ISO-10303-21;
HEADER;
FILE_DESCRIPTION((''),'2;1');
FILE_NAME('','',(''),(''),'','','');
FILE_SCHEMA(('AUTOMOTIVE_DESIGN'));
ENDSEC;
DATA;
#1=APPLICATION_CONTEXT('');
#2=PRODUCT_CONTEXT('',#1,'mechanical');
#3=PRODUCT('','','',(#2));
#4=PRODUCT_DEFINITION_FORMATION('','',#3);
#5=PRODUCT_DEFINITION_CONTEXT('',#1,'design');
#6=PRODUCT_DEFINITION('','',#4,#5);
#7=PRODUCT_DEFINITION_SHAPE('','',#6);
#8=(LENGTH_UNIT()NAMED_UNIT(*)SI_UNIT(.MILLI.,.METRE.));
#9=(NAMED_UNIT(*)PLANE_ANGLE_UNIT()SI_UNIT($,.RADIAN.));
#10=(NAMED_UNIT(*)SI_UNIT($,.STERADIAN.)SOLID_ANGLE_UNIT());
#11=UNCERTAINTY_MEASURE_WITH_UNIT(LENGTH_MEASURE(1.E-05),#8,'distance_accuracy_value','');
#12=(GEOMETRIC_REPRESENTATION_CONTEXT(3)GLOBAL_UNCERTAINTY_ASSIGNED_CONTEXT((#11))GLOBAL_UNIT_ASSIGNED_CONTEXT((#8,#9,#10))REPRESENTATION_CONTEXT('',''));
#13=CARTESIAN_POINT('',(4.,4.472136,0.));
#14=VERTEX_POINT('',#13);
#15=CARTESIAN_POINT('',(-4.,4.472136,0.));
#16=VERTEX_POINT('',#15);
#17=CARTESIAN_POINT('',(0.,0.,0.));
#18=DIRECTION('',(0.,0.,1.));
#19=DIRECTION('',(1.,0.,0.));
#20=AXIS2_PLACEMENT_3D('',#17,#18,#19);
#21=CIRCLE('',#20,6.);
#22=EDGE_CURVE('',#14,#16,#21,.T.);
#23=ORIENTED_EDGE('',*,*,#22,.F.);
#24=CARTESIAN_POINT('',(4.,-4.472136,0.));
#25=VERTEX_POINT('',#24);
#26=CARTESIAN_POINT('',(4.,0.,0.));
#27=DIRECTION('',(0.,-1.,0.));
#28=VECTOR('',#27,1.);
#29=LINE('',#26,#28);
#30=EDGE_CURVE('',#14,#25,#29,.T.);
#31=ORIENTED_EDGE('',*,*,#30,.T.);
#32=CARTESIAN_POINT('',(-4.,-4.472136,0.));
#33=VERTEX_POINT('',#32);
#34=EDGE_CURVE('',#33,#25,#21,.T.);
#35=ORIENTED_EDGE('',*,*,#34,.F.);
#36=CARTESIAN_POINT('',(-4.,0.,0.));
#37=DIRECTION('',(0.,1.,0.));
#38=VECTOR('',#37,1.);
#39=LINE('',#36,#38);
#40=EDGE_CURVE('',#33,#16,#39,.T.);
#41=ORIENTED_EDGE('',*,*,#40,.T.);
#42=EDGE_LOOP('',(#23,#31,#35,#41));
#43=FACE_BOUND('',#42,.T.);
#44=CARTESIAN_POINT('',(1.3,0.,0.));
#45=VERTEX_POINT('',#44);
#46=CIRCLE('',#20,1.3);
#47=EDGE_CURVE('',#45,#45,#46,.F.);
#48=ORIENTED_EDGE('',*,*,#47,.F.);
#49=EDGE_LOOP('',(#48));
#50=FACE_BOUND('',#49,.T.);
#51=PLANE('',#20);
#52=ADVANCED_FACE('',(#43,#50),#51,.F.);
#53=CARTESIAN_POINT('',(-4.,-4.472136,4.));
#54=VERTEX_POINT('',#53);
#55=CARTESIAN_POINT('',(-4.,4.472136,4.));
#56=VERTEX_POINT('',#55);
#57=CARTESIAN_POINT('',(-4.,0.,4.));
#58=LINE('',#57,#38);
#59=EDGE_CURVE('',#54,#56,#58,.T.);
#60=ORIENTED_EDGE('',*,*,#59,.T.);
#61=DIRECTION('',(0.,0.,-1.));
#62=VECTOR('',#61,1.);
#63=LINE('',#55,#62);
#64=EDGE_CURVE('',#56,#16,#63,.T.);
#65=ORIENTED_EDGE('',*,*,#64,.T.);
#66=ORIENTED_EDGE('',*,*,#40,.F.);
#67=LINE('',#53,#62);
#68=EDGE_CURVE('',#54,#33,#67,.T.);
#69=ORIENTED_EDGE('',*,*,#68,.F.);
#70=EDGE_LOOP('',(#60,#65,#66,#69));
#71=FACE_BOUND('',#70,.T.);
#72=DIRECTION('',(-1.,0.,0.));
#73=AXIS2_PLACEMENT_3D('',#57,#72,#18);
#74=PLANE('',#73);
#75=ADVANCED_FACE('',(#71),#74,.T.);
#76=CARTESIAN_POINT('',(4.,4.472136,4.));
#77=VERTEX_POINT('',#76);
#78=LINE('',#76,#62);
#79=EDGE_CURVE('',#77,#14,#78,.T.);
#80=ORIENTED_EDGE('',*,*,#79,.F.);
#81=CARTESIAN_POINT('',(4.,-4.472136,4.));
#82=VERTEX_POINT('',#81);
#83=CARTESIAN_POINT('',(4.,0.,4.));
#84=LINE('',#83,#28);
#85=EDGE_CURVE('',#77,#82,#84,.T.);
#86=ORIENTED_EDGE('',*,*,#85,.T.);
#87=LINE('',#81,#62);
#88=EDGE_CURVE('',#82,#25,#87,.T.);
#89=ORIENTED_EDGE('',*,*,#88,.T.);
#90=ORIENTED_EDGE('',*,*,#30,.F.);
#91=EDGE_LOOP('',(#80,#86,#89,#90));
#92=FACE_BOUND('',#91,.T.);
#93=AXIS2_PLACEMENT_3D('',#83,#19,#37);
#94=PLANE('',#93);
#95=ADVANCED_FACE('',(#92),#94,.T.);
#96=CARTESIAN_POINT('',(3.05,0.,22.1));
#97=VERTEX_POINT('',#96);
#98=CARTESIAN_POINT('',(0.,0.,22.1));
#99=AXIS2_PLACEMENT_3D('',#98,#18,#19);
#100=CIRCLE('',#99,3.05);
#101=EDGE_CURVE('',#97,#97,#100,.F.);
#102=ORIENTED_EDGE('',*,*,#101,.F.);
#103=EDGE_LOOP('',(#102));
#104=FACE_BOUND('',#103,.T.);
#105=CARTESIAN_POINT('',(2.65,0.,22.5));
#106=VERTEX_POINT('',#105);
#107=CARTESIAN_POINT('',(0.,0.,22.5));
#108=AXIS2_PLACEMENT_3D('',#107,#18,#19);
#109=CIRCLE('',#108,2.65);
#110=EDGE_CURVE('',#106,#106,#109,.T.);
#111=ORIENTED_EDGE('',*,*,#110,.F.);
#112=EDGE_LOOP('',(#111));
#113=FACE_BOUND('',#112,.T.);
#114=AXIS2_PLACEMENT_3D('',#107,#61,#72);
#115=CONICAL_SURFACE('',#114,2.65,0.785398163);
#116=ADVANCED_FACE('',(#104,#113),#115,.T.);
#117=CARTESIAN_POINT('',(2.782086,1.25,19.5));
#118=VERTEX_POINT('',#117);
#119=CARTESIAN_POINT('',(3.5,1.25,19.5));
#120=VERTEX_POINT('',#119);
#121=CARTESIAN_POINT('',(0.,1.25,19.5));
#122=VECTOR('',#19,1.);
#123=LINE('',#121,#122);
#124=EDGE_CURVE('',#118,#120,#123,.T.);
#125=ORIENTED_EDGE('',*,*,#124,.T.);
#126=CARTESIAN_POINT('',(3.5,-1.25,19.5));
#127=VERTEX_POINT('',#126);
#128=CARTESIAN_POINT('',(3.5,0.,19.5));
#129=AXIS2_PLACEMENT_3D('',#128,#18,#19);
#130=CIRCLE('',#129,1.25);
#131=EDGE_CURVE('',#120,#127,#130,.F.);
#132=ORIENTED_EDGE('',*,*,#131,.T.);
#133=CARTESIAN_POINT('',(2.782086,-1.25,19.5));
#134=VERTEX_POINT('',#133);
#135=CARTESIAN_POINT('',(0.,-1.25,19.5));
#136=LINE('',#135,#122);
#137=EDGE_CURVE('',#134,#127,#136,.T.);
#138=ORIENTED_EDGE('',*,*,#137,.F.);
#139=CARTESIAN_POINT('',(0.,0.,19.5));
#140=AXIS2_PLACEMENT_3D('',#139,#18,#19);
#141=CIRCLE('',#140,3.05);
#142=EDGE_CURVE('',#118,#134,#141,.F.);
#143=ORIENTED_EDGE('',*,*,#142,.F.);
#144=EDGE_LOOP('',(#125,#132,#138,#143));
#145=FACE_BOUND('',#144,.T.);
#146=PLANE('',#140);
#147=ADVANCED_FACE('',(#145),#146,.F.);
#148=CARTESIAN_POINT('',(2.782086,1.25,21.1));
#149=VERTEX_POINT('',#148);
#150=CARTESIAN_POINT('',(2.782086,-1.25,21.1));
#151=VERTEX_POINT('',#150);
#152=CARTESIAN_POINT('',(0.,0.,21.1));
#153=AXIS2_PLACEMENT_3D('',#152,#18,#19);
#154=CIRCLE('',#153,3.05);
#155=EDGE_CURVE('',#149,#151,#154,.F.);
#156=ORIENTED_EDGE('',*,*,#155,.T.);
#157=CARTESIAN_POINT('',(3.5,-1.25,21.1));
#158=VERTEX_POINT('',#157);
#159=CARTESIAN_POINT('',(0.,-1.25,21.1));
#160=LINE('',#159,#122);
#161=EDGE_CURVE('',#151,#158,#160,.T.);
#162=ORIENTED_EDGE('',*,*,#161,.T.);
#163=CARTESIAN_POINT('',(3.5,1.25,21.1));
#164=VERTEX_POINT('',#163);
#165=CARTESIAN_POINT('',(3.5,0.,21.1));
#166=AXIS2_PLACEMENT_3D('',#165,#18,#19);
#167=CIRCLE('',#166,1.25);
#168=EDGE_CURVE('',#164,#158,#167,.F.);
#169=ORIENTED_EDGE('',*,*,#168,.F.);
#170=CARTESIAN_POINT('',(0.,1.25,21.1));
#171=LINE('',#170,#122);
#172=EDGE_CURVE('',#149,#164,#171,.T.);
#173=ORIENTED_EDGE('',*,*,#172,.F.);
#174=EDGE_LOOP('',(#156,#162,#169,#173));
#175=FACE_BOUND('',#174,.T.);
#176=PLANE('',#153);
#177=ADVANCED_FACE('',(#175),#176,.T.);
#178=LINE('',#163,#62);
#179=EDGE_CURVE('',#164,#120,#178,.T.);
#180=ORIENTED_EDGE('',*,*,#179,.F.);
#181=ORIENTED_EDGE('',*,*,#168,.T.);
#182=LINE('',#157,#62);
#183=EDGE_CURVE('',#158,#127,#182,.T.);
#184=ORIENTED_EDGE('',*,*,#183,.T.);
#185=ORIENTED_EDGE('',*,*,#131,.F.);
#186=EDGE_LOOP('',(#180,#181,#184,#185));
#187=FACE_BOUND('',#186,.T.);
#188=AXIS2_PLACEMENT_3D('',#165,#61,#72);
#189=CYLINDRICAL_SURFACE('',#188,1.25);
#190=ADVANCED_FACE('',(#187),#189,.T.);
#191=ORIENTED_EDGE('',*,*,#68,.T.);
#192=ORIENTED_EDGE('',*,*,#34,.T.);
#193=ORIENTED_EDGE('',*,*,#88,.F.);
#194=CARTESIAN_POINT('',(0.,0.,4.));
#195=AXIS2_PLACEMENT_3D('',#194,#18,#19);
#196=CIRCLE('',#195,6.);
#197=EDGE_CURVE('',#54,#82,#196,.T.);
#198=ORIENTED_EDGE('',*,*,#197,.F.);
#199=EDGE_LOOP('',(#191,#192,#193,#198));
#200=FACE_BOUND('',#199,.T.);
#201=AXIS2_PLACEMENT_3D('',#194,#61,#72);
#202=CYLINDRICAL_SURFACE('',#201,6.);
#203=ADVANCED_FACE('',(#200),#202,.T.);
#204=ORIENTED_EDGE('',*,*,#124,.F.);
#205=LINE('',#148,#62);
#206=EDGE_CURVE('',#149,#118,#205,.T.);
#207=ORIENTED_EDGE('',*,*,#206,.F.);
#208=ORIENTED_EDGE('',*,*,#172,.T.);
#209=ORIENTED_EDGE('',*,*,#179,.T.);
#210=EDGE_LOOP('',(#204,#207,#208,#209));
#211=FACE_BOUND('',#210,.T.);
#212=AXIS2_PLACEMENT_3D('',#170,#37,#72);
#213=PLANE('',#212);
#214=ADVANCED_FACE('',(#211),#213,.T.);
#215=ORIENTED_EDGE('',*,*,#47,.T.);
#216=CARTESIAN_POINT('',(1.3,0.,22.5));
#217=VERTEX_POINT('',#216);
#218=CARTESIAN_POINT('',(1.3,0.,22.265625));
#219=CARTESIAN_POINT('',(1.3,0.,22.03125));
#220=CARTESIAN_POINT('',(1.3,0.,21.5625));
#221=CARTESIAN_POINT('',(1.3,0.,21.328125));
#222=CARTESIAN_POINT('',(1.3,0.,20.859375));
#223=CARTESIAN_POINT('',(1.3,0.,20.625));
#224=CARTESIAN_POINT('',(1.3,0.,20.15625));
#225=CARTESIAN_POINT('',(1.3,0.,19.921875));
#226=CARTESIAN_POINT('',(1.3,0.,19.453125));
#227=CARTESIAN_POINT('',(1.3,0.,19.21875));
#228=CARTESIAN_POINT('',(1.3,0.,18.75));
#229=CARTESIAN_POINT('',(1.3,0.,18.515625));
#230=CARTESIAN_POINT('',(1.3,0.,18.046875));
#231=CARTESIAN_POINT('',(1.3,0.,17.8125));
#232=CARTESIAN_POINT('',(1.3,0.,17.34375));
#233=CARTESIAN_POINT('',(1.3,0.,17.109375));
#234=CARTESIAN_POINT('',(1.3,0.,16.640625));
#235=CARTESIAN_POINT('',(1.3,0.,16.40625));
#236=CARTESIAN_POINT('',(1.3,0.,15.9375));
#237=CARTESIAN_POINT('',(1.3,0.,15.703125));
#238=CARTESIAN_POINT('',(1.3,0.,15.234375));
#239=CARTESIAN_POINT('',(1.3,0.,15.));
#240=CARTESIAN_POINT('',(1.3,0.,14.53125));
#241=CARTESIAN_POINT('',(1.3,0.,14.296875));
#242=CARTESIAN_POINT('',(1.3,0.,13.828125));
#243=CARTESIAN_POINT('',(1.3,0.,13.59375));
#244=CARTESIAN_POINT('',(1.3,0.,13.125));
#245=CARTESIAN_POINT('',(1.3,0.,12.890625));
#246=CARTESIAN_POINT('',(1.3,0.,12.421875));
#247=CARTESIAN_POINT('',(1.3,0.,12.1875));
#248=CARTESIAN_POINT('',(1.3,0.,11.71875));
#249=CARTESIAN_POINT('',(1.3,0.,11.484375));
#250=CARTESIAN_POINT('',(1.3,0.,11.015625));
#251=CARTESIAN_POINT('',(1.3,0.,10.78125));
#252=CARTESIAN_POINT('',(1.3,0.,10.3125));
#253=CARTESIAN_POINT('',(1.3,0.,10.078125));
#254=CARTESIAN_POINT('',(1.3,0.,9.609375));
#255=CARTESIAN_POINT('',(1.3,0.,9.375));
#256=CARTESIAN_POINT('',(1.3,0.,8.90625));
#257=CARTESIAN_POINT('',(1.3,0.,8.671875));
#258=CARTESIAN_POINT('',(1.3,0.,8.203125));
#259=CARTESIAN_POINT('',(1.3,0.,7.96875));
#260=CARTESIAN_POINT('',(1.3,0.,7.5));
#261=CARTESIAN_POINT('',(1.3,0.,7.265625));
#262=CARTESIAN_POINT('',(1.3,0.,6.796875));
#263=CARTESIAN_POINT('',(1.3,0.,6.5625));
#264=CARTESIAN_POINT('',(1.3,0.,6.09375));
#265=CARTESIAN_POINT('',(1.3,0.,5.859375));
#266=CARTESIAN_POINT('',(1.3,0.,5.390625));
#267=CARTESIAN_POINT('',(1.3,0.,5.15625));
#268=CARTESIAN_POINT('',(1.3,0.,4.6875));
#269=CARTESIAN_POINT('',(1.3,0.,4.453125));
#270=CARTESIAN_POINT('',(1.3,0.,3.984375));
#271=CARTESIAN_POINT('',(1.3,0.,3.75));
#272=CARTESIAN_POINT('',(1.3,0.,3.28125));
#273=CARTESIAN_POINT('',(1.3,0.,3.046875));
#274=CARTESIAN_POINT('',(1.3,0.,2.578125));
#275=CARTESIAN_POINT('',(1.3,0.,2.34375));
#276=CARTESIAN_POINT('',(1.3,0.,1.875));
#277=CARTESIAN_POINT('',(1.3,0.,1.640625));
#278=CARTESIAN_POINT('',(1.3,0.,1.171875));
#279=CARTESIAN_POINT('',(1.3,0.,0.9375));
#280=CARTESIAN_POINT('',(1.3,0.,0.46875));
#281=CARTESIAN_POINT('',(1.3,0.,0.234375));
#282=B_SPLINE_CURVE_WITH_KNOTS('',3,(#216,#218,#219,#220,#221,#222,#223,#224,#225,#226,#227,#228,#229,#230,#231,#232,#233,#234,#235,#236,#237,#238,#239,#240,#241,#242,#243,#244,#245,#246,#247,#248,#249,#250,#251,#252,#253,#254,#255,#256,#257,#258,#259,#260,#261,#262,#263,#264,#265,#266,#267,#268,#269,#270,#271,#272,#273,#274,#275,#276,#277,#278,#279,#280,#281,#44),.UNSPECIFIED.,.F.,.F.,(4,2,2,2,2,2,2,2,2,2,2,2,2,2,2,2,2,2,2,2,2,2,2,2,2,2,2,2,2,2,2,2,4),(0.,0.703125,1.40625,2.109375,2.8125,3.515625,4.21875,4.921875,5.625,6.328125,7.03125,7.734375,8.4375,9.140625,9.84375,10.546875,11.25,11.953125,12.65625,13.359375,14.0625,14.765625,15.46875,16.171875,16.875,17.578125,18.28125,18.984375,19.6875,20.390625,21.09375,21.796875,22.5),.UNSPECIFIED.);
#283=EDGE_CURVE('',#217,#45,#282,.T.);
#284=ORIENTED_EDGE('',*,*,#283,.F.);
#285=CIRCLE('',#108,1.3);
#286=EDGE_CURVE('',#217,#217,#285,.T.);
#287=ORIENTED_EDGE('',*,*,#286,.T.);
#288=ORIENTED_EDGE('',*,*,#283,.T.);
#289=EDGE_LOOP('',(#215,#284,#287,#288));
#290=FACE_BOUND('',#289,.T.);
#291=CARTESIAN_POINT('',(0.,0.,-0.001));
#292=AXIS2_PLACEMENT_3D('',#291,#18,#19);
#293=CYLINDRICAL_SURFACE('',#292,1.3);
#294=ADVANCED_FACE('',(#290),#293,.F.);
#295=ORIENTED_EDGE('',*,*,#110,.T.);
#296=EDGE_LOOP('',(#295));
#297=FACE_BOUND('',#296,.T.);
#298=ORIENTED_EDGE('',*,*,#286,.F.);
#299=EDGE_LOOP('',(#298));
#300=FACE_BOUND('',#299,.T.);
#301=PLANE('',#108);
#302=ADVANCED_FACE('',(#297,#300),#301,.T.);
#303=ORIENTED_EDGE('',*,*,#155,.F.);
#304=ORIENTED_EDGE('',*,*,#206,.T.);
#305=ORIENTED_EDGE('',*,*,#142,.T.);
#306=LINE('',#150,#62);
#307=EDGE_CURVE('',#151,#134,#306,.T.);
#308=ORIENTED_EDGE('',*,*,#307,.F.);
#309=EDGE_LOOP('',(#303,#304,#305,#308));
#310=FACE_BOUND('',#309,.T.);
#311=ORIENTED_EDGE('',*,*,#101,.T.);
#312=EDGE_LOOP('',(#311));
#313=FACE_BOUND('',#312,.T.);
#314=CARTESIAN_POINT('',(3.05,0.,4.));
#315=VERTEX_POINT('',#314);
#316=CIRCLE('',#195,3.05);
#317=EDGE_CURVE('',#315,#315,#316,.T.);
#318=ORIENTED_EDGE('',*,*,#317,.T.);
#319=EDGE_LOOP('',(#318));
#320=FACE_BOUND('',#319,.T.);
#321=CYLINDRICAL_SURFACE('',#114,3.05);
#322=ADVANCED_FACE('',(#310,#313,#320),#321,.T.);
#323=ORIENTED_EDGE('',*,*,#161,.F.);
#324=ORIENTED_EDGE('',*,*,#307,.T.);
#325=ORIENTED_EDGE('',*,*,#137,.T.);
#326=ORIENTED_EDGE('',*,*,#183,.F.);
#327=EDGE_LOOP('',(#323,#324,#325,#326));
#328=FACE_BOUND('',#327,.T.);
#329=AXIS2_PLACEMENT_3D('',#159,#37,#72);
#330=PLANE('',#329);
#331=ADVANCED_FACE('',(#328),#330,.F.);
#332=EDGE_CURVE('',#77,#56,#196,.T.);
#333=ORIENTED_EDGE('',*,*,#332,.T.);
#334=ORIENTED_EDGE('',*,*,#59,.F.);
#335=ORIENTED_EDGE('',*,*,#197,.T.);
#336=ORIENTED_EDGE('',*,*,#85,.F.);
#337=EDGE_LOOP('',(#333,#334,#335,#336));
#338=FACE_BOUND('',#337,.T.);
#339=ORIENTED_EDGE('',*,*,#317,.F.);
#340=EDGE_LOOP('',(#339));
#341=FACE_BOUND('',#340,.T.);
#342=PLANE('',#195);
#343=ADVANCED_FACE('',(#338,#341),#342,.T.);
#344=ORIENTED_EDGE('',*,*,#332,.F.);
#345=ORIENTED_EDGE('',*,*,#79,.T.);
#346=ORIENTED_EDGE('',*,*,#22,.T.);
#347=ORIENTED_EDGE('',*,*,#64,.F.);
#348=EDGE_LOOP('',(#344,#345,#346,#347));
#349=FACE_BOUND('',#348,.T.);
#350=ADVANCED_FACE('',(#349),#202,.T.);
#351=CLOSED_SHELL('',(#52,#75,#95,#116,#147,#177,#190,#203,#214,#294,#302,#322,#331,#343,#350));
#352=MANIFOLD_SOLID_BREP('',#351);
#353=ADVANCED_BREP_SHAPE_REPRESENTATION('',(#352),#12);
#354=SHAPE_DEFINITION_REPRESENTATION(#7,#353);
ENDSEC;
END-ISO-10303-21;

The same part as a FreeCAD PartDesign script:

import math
import FreeCAD as App
import Part
import Sketcher
from FreeCAD import Vector
Q = App.Units.Quantity


def edges_at(feature, points):
    """Names of the edges that pass closest to the given points."""
    edges = feature.Shape.Edges
    near = lambda p: min(range(len(edges)), key=lambda i: edges[i].distToShape(Part.Vertex(*p))[0])
    return sorted({f"Edge{near(p) + 1}" for p in points})

doc = App.newDocument("Part")
params = doc.addObject("Spreadsheet::Sheet", "Params")
for row, (alias, value) in enumerate([
    ("sketch1_radius", "6 mm"),
    ("pad1_length", "4 mm"),
    ("sketch2_diameter", "6.1 mm"),
    ("pad2_length", "18.5 mm"),
    ("sketch3_radius", "3.05 mm"),
    ("sketch3_radius2", "1.25 mm"),
    ("pad3_length", "1.6 mm"),
    ("sketch4_diameter", "2.6 mm"),
    ("chamfer_size", "0.4 mm"),
], start=1):
    params.set(f"A{row}", alias)
    params.set(f"B{row}", "=" + value)
    params.setAlias(f"B{row}", alias)

body = doc.addObject("PartDesign::Body", "Body")

sketch1 = body.newObject("Sketcher::SketchObject", "Sketch")
sketch1.AttachmentSupport = (doc.getObject("XY_Plane"), [""])
sketch1.MapMode = "FlatFace"
sketch1.addGeometry(Part.LineSegment(Vector(-4, 4.472136, 0), Vector(-4, -4.472136, 0)), False)
sketch1.addGeometry(Part.ArcOfCircle(Part.Circle(Vector(0, 0, 0), Vector(0, 0, 1), 6), math.radians(-131.810315), math.radians(-48.189685)), False)
sketch1.addGeometry(Part.LineSegment(Vector(4, -4.472136, 0), Vector(4, 4.472136, 0)), False)
sketch1.addGeometry(Part.ArcOfCircle(Part.Circle(Vector(0, 0, 0), Vector(0, 0, 1), 6), math.radians(48.189685), math.radians(131.810315)), False)
sketch1.addConstraint(Sketcher.Constraint("Coincident", 0, 2, 1, 1))
sketch1.addConstraint(Sketcher.Constraint("Coincident", 1, 2, 2, 1))
sketch1.addConstraint(Sketcher.Constraint("Coincident", 2, 2, 3, 1))
sketch1.addConstraint(Sketcher.Constraint("Coincident", 3, 2, 0, 1))
sketch1.addConstraint(Sketcher.Constraint("Vertical", 0))
sketch1.addConstraint(Sketcher.Constraint("Vertical", 2))
sketch1.addConstraint(Sketcher.Constraint("Coincident", 1, 3, -1, 1))
sketch1.addConstraint(Sketcher.Constraint("Coincident", 3, 3, -1, 1))
sketch1.addConstraint(Sketcher.Constraint("Equal", 1, 3))
sketch1.addConstraint(Sketcher.Constraint("Horizontal", 0, 2, 1, 2))
sketch1.addConstraint(Sketcher.Constraint("Radius", 1, Q("6 mm")))
sketch1.addConstraint(Sketcher.Constraint("DistanceX", 0, 2, -1, 1, Q("4 mm")))
sketch1.setExpression("Constraints[10]", "Params.sketch1_radius")
pad1 = body.newObject("PartDesign::Pad", "Pad")
pad1.Profile = sketch1
pad1.setExpression("Length", "Params.pad1_length")

sketch2 = body.newObject("Sketcher::SketchObject", "Sketch001")
sketch2.AttachmentSupport = (doc.getObject("XY_Plane"), [""])
sketch2.MapMode = "FlatFace"
sketch2.AttachmentOffset = App.Placement(Vector(0, 0, 4), App.Rotation())
sketch2.addGeometry(Part.Circle(Vector(0, 0, 0), Vector(0, 0, 1), 3.05), False)
sketch2.addConstraint(Sketcher.Constraint("Coincident", 0, 3, -1, 1))
sketch2.addConstraint(Sketcher.Constraint("Diameter", 0, Q("6.1 mm")))
sketch2.setExpression("Constraints[1]", "Params.sketch2_diameter")
pad2 = body.newObject("PartDesign::Pad", "Pad001")
pad2.Profile = sketch2
pad2.setExpression("Length", "Params.pad2_length")

sketch3 = body.newObject("Sketcher::SketchObject", "Sketch002")
sketch3.AttachmentSupport = (doc.getObject("XY_Plane"), [""])
sketch3.MapMode = "FlatFace"
sketch3.AttachmentOffset = App.Placement(Vector(0, 0, 19.5), App.Rotation())
sketch3.addGeometry(Part.LineSegment(Vector(3.5, 1.25, 0), Vector(2.782086, 1.25, 0)), False)
sketch3.addGeometry(Part.ArcOfCircle(Part.Circle(Vector(0, 0, 0), Vector(0, 0, 1), 3.05), math.radians(0), math.radians(24.194537)), False)
sketch3.addGeometry(Part.ArcOfCircle(Part.Circle(Vector(0, 0, 0), Vector(0, 0, 1), 3.05), math.radians(-24.194537), math.radians(0)), False)
sketch3.addGeometry(Part.LineSegment(Vector(2.782086, -1.25, 0), Vector(3.5, -1.25, 0)), False)
sketch3.addGeometry(Part.ArcOfCircle(Part.Circle(Vector(3.5, 0, 0), Vector(0, 0, 1), 1.25), math.radians(-90), math.radians(90)), False)
sketch3.addConstraint(Sketcher.Constraint("Coincident", 0, 2, 1, 2))
sketch3.addConstraint(Sketcher.Constraint("Tangent", 1, 1, 2, 2))
sketch3.addConstraint(Sketcher.Constraint("Coincident", 2, 1, 3, 1))
sketch3.addConstraint(Sketcher.Constraint("Tangent", 3, 2, 4, 1))
sketch3.addConstraint(Sketcher.Constraint("Tangent", 4, 2, 0, 1))
sketch3.addConstraint(Sketcher.Constraint("Horizontal", 0))
sketch3.addConstraint(Sketcher.Constraint("Horizontal", 3))
sketch3.addConstraint(Sketcher.Constraint("Coincident", 1, 3, -1, 1))
sketch3.addConstraint(Sketcher.Constraint("Equal", 1, 2))
sketch3.addConstraint(Sketcher.Constraint("PointOnObject", 4, 3, -1))
sketch3.addConstraint(Sketcher.Constraint("PointOnObject", 1, 1, -1))
sketch3.addConstraint(Sketcher.Constraint("Radius", 1, Q("3.05 mm")))
sketch3.addConstraint(Sketcher.Constraint("Radius", 4, Q("1.25 mm")))
sketch3.addConstraint(Sketcher.Constraint("DistanceX", -1, 1, 4, 3, Q("3.5 mm")))
sketch3.setExpression("Constraints[11]", "Params.sketch3_radius")
sketch3.setExpression("Constraints[12]", "Params.sketch3_radius2")
pad3 = body.newObject("PartDesign::Pad", "Pad002")
pad3.Profile = sketch3
pad3.setExpression("Length", "Params.pad3_length")

sketch4 = body.newObject("Sketcher::SketchObject", "Sketch003")
sketch4.AttachmentSupport = (doc.getObject("XY_Plane"), [""])
sketch4.MapMode = "FlatFace"
sketch4.AttachmentOffset = App.Placement(Vector(0, 0, 22.5), App.Rotation())
sketch4.addGeometry(Part.Circle(Vector(0, 0, 0), Vector(0, 0, 1), 1.3), False)
sketch4.addConstraint(Sketcher.Constraint("Coincident", 0, 3, -1, 1))
sketch4.addConstraint(Sketcher.Constraint("Diameter", 0, Q("2.6 mm")))
sketch4.setExpression("Constraints[1]", "Params.sketch4_diameter")
pocket1 = body.newObject("PartDesign::Pocket", "Pocket")
pocket1.Profile = sketch4
pocket1.Type = "UpToFirst"
doc.recompute()

chamfer = body.newObject("PartDesign::Chamfer", "Chamfer")
chamfer.Base = (pocket1, edges_at(pocket1, [(-3.05, 0, 22.5)]))
chamfer.setExpression("Size", "Params.chamfer_size")

doc.recompute()
